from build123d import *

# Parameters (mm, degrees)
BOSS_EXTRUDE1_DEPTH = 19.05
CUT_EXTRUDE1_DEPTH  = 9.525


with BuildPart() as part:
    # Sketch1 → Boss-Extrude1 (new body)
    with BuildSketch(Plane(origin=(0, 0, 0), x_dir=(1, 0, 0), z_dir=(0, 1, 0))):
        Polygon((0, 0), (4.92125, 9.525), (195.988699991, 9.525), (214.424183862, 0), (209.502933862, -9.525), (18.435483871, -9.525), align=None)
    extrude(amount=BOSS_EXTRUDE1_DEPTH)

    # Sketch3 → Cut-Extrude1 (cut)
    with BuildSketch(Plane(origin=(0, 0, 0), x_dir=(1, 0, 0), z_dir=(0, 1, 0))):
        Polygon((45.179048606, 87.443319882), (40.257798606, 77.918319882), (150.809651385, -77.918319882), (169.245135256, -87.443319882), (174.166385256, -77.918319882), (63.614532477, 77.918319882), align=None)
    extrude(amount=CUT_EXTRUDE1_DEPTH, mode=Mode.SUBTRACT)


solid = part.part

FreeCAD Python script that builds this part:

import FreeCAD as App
import Part
import Sketcher
from FreeCAD import Vector
Q = App.Units.Quantity

doc = App.newDocument("Part")
body = doc.addObject("PartDesign::Body", "Body")

sketch1 = body.newObject("Sketcher::SketchObject", "Sketch")
sketch1.AttachmentSupport = (doc.getObject("XZ_Plane"), [""])
sketch1.MapMode = "FlatFace"
sketch1.addGeometry([
    Part.LineSegment(Vector(5, -10, 0), Vector(0, 0, 0)),
    Part.LineSegment(Vector(0, 0, 0), Vector(18, 10, 0)),
    Part.LineSegment(Vector(18, 10, 0), Vector(210, 10, 0)),
    Part.LineSegment(Vector(210, 10, 0), Vector(214, 0, 0)),
    Part.LineSegment(Vector(214, 0, 0), Vector(196, -10, 0)),
    Part.LineSegment(Vector(196, -10, 0), Vector(5, -10, 0)),
], False)
sketch1.addConstraint([
    Sketcher.Constraint("Coincident", 0, 2, 1, 1),
    Sketcher.Constraint("Coincident", 1, 2, 2, 1),
    Sketcher.Constraint("Coincident", 2, 2, 3, 1),
    Sketcher.Constraint("Coincident", 3, 2, 4, 1),
    Sketcher.Constraint("Coincident", 4, 2, 5, 1),
    Sketcher.Constraint("Coincident", 5, 2, 0, 1),
    Sketcher.Constraint("Horizontal", 2),
    Sketcher.Constraint("Horizontal", 5),
    Sketcher.Constraint("Coincident", 0, 2, -1, 1),
    Sketcher.Constraint("PointOnObject", 3, 2, -1),
    Sketcher.Constraint("Perpendicular", 0, 1),
    Sketcher.Constraint("Perpendicular", 1, 3),
    Sketcher.Constraint("Perpendicular", 3, 4),
    Sketcher.Constraint("Equal", 2, 5),
    Sketcher.Constraint("DistanceY", 4, 2, 2, 2, Q("0.75 in")),
    Sketcher.Constraint("DistanceX", 2, 1, 2, 2, 191.06745),
    Sketcher.Constraint("DistanceX", -1, 1, 4, 2, 195.9887),
])
pad1 = body.newObject("PartDesign::Pad", "Pad")
pad1.Profile = sketch1
pad1.Length = Q("0.75 in")
pad1.Reversed = True

sketch2 = body.newObject("Sketcher::SketchObject", "Sketch001")
sketch2.AttachmentSupport = (doc.getObject("XZ_Plane"), [""])
sketch2.MapMode = "FlatFace"
sketch2.addGeometry([
    Part.LineSegment(Vector(45, -87, 0), Vector(40, -78, 0)),
    Part.LineSegment(Vector(40, -78, 0), Vector(151, 78, 0)),
    Part.LineSegment(Vector(151, 78, 0), Vector(169, 87, 0)),
    Part.LineSegment(Vector(169, 87, 0), Vector(174, 78, 0)),
    Part.LineSegment(Vector(174, 78, 0), Vector(64, -78, 0)),
    Part.LineSegment(Vector(64, -78, 0), Vector(45, -87, 0)),
], False)
sketch2.addConstraint([
    Sketcher.Constraint("Coincident", 0, 2, 1, 1),
    Sketcher.Constraint("Coincident", 1, 2, 2, 1),
    Sketcher.Constraint("Coincident", 2, 2, 3, 1),
    Sketcher.Constraint("Coincident", 3, 2, 4, 1),
    Sketcher.Constraint("Coincident", 4, 2, 5, 1),
    Sketcher.Constraint("Coincident", 5, 2, 0, 1),
    Sketcher.Constraint("Perpendicular", 0, 2),
    Sketcher.Constraint("Perpendicular", 2, 3),
    Sketcher.Constraint("Parallel", 1, 4),
    Sketcher.Constraint("Perpendicular", 3, 5),
    Sketcher.Constraint("Horizontal", 1, 2, 3, 2),
    Sketcher.Constraint("Horizontal", 0, 2, 4, 2),
    Sketcher.Constraint("DistanceY", 1, 2, 2, 2, Q("0.375 in")),
    Sketcher.Constraint("DistanceX", -1, 1, 0, 2, 40.257799),
    Sketcher.Constraint("Distance", 0, 10.721209),
    Sketcher.Constraint("Distance", 1, 191.06745),
    Sketcher.Constraint("DistanceY", 0, 2, -1, 1, 77.91832),
    Sketcher.Constraint("DistanceX", -1, 1, 1, 2, 150.809651),
])
pocket1 = body.newObject("PartDesign::Pocket", "Pocket")
pocket1.Profile = sketch2
pocket1.Length = Q("0.375 in")

doc.recompute()
